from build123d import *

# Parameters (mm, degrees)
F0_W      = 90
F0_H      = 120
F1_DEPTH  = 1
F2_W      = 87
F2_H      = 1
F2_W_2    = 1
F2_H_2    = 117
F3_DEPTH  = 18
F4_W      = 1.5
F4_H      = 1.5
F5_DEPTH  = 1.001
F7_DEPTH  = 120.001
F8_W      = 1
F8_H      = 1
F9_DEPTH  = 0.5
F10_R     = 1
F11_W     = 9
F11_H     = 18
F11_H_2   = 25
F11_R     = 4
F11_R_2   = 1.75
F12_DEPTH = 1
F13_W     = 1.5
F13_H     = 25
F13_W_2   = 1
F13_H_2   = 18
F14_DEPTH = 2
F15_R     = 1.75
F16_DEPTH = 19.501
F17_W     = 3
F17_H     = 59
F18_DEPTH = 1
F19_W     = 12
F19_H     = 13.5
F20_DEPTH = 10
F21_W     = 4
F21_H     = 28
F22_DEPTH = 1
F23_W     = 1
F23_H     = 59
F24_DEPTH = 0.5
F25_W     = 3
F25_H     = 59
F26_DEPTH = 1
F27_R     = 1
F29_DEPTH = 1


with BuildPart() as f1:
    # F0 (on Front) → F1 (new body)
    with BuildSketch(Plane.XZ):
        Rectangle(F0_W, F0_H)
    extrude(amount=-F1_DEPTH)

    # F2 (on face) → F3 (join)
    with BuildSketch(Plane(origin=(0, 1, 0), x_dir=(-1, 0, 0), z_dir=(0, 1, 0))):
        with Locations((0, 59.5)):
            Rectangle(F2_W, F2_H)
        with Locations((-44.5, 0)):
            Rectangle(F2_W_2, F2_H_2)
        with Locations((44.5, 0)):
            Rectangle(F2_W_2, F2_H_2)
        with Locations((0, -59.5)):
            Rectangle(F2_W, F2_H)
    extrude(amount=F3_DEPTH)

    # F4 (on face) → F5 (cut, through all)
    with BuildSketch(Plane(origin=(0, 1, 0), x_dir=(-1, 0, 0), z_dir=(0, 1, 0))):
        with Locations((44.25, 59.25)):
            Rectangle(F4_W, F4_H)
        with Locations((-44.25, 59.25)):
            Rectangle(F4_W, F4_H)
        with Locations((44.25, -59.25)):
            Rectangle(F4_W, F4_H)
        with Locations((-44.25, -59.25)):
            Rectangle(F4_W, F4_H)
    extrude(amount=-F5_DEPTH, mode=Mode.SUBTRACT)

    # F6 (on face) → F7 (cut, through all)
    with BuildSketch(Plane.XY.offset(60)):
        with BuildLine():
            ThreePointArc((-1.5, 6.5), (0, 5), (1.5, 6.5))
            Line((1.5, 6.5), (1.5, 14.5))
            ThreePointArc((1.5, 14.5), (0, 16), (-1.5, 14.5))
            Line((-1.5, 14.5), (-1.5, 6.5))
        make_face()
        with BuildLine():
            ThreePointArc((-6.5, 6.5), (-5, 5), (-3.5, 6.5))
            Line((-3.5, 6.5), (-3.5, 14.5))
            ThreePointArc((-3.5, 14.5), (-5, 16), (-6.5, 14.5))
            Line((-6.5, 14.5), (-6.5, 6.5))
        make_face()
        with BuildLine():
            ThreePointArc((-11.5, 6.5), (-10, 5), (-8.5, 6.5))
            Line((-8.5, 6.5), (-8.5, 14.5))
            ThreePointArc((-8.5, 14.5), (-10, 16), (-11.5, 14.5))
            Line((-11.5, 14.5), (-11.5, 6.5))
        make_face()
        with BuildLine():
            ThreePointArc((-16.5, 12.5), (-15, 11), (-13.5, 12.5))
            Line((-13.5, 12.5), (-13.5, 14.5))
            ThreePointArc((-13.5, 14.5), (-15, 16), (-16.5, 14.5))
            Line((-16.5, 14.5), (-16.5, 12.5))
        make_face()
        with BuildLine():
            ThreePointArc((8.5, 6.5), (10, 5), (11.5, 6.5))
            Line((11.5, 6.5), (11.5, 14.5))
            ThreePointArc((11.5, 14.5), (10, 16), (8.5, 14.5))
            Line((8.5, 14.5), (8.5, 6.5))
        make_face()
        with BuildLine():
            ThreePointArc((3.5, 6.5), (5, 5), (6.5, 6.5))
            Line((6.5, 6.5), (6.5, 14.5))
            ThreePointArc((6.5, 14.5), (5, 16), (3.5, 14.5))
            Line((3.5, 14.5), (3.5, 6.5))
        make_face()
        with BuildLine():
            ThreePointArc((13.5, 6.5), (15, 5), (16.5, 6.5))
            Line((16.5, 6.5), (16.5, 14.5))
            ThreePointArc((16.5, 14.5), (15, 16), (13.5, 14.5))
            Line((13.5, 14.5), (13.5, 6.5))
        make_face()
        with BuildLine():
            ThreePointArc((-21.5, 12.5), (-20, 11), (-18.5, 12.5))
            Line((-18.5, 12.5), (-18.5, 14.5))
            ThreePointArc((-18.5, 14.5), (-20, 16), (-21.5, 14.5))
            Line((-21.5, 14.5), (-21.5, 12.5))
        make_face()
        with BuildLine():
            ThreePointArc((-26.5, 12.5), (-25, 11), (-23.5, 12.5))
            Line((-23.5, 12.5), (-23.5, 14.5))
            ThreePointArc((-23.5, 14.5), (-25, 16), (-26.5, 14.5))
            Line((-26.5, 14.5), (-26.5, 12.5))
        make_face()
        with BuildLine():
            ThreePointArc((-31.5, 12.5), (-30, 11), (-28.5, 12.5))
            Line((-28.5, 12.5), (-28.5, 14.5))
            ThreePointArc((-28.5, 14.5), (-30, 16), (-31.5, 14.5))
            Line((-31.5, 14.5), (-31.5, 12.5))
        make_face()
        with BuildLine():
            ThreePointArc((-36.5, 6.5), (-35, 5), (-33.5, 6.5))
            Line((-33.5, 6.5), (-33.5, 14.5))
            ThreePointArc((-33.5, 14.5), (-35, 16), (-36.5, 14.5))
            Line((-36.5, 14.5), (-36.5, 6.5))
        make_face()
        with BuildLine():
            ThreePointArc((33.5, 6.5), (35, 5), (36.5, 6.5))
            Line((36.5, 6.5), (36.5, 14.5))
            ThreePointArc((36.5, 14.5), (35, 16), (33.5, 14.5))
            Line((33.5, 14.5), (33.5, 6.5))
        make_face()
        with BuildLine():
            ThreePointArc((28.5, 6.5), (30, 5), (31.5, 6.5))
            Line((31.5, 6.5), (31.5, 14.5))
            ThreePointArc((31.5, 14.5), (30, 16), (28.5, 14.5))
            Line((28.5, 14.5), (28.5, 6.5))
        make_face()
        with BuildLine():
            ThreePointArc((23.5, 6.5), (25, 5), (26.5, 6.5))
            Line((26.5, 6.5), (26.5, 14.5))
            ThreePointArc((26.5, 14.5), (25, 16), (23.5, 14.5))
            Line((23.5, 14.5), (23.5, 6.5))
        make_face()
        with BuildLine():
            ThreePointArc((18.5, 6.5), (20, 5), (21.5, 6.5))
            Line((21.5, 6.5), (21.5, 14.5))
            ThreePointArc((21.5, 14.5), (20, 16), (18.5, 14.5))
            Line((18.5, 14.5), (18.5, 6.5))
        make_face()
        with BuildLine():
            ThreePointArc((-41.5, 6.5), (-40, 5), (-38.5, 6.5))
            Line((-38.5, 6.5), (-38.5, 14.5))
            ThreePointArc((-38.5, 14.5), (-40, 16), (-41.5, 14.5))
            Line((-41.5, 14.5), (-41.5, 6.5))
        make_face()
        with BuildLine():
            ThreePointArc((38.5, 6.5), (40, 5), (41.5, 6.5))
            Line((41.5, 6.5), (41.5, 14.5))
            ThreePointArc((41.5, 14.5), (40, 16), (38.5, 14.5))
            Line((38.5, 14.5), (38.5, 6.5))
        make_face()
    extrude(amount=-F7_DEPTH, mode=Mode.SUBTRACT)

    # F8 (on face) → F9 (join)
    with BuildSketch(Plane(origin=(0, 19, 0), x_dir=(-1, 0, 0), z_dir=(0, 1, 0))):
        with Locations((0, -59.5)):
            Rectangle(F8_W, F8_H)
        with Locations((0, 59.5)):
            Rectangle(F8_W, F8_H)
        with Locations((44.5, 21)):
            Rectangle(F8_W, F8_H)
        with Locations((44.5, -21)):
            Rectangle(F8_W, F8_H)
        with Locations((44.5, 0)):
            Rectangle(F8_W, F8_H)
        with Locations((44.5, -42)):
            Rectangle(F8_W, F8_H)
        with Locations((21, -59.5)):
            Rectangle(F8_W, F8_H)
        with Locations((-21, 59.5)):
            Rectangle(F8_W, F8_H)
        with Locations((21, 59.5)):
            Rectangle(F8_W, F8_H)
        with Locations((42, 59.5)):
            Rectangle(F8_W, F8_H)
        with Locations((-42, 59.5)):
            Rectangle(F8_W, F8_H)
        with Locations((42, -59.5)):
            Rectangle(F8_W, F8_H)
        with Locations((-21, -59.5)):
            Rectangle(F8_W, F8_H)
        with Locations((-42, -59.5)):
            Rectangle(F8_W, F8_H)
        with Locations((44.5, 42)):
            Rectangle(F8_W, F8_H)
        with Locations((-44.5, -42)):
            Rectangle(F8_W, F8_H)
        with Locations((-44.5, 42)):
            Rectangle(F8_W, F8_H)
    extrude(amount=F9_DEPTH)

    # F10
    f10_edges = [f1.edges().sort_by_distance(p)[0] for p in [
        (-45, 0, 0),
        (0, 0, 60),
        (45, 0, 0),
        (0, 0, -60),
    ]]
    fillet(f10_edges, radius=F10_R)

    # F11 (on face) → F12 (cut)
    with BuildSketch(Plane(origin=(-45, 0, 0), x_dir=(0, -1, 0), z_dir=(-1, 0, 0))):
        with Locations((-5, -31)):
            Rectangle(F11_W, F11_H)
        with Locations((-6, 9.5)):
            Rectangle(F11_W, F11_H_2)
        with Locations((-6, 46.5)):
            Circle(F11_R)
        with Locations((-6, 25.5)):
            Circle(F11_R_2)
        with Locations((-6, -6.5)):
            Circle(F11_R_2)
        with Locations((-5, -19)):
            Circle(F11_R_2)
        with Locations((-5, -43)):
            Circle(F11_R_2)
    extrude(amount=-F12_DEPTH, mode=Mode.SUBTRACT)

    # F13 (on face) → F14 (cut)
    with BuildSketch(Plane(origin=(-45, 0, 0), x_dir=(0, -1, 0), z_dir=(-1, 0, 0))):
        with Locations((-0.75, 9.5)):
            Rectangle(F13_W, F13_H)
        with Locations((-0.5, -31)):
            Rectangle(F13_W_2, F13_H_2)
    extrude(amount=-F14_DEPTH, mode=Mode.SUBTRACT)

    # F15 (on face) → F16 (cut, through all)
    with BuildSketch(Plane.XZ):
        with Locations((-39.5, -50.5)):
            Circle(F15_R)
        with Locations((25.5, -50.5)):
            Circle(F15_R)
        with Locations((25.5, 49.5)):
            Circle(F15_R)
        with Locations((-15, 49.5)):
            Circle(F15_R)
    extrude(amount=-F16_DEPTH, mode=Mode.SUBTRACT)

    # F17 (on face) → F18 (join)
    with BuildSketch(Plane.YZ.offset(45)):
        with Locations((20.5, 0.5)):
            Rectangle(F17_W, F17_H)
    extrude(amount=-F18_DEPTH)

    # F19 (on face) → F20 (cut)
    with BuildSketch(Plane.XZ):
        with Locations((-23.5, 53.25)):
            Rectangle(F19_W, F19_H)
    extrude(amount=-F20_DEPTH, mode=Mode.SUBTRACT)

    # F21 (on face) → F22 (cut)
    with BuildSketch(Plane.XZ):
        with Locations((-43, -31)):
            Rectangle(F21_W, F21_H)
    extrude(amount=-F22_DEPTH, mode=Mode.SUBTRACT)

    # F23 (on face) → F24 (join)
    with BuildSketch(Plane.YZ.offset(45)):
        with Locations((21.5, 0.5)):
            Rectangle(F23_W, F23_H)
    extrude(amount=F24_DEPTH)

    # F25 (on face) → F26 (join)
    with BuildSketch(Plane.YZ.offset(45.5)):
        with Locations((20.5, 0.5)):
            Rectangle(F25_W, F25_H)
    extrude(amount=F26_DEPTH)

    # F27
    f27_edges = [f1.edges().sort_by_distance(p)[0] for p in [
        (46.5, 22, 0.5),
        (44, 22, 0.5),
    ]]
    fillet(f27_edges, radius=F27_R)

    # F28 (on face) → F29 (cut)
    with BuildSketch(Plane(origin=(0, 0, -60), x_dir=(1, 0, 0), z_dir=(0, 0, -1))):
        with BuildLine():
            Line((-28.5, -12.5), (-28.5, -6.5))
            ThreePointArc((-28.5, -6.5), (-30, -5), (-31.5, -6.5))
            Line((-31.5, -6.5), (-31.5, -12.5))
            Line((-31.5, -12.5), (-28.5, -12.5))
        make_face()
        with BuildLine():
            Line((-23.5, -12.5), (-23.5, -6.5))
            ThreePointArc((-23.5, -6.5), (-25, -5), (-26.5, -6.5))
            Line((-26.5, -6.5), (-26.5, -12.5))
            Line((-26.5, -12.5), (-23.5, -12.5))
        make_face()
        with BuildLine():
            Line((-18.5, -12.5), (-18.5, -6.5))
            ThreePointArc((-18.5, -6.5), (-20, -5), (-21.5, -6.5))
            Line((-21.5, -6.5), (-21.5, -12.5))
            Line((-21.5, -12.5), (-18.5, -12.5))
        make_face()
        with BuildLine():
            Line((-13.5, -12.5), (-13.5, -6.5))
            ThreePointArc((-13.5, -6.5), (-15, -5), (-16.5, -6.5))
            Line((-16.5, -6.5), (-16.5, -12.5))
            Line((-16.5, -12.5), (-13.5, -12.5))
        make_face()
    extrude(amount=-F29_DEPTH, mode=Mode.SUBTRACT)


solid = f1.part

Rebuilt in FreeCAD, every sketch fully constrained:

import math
import FreeCAD as App
import Part
import Sketcher
Q = App.Units.Quantity


def edges_at(feature, points):
    """Names of the edges that pass closest to the given points."""
    edges = feature.Shape.Edges
    near = lambda p: min(range(len(edges)), key=lambda i: edges[i].distToShape(Part.Vertex(*p))[0])
    return sorted({f"Edge{near(p) + 1}" for p in points})


def add_polygon(sketch, points):
    """Adds a closed chain of lines whose ends are joined by coincident constraints."""
    first, n = sketch.GeometryCount, len(points)
    for a, b in zip(points, points[1:] + points[:1]):
        sketch.addGeometry(Part.LineSegment(App.Vector(*a, 0), App.Vector(*b, 0)), False)
    for i in range(n):
        sketch.addConstraint(Sketcher.Constraint("Coincident", first + i, 2, first + (i + 1) % n, 1))

doc = App.newDocument("Part")
body = doc.addObject("PartDesign::Body", "Body")

# Sketch on XZ plane
sketch1 = body.newObject("Sketcher::SketchObject", "Sketch")
sketch1.AttachmentSupport = (doc.getObject("XZ_Plane"), [""])
sketch1.MapMode = "FlatFace"
add_polygon(sketch1, [(-45, 60), (-45, -60), (45, -60), (45, 60)])  # lines 0-3
sketch1.addConstraint([
    Sketcher.Constraint("Vertical", 0),
    Sketcher.Constraint("Horizontal", 1),
    Sketcher.Constraint("Vertical", 2),
    Sketcher.Constraint("Horizontal", 3),
    Sketcher.Constraint("Symmetric", 0, 2, 2, 2, -1, 1),
    Sketcher.Constraint("DistanceX", 1, 1, 1, 2, Q("90 mm")),
    Sketcher.Constraint("DistanceY", 0, 2, 0, 1, Q("120 mm")),
])
pad1 = body.newObject("PartDesign::Pad", "Pad")
pad1.Profile = sketch1
pad1.Length = 1
pad1.Reversed = True

# Sketch on XZ plane
sketch2 = body.newObject("Sketcher::SketchObject", "Sketch001")
sketch2.AttachmentSupport = (doc.getObject("XZ_Plane"), [""])
sketch2.MapMode = "FlatFace"
sketch2.AttachmentOffset = App.Placement(App.Vector(0, 0, -1), App.Rotation())
add_polygon(sketch2, [(43.5, 60), (43.5, 59), (-43.5, 59), (-43.5, 60)])  # lines 0-3
add_polygon(sketch2, [(45, 58.5), (45, -58.5), (44, -58.5), (44, 58.5)])  # lines 4-7
add_polygon(sketch2, [(-44, 58.5), (-44, -58.5), (-45, -58.5), (-45, 58.5)])  # lines 8-11
add_polygon(sketch2, [(43.5, -59), (43.5, -60), (-43.5, -60), (-43.5, -59)])  # lines 12-15
sketch2.addConstraint([
    Sketcher.Constraint("Vertical", 0),
    Sketcher.Constraint("Horizontal", 1),
    Sketcher.Constraint("Vertical", 2),
    Sketcher.Constraint("Horizontal", 3),
    Sketcher.Constraint("Vertical", 4),
    Sketcher.Constraint("Horizontal", 5),
    Sketcher.Constraint("Vertical", 6),
    Sketcher.Constraint("Horizontal", 7),
    Sketcher.Constraint("Vertical", 8),
    Sketcher.Constraint("Horizontal", 9),
    Sketcher.Constraint("Vertical", 10),
    Sketcher.Constraint("Horizontal", 11),
    Sketcher.Constraint("Vertical", 12),
    Sketcher.Constraint("Horizontal", 13),
    Sketcher.Constraint("Vertical", 14),
    Sketcher.Constraint("Horizontal", 15),
    Sketcher.Constraint("Symmetric", 6, 2, 8, 2, -1, 1),
    Sketcher.Constraint("Symmetric", 4, 2, 10, 2, -1, 1),
    Sketcher.Constraint("Symmetric", 2, 2, 12, 2, -1, 1),
    Sketcher.Constraint("Symmetric", 0, 2, 14, 2, -1, 1),
    Sketcher.Constraint("Horizontal", 5, 2, 8, 2),
    Sketcher.Constraint("Vertical", 3, 2, 12, 2),
    Sketcher.Constraint("Equal", 11, 0),
    Sketcher.Constraint("DistanceX", 1, 2, 1, 1, Q("87 mm")),
    Sketcher.Constraint("DistanceX", 5, 2, 5, 1, Q("1 mm")),
    Sketcher.Constraint("DistanceY", 4, 2, 4, 1, Q("117 mm")),
    Sketcher.Constraint("DistanceY", -1, 1, 0, 2, Q("59 mm")),
    Sketcher.Constraint("DistanceX", -1, 1, 4, 2, Q("45 mm")),
])
pad2 = body.newObject("PartDesign::Pad", "Pad001")
pad2.Profile = sketch2
pad2.Length = 18
pad2.Reversed = True

# Sketch on XZ plane
sketch3 = body.newObject("Sketcher::SketchObject", "Sketch002")
sketch3.AttachmentSupport = (doc.getObject("XZ_Plane"), [""])
sketch3.MapMode = "FlatFace"
sketch3.AttachmentOffset = App.Placement(App.Vector(0, 0, -1), App.Rotation())
add_polygon(sketch3, [(-43.5, 60), (-43.5, 58.5), (-45, 58.5), (-45, 60)])  # lines 0-3
add_polygon(sketch3, [(45, 60), (45, 58.5), (43.5, 58.5), (43.5, 60)])  # lines 4-7
add_polygon(sketch3, [(-43.5, -58.5), (-43.5, -60), (-45, -60), (-45, -58.5)])  # lines 8-11
add_polygon(sketch3, [(45, -58.5), (45, -60), (43.5, -60), (43.5, -58.5)])  # lines 12-15
sketch3.addConstraint([
    Sketcher.Constraint("Vertical", 0),
    Sketcher.Constraint("Horizontal", 1),
    Sketcher.Constraint("Vertical", 2),
    Sketcher.Constraint("Horizontal", 3),
    Sketcher.Constraint("Vertical", 4),
    Sketcher.Constraint("Horizontal", 5),
    Sketcher.Constraint("Vertical", 6),
    Sketcher.Constraint("Horizontal", 7),
    Sketcher.Constraint("Vertical", 8),
    Sketcher.Constraint("Horizontal", 9),
    Sketcher.Constraint("Vertical", 10),
    Sketcher.Constraint("Horizontal", 11),
    Sketcher.Constraint("Vertical", 12),
    Sketcher.Constraint("Horizontal", 13),
    Sketcher.Constraint("Vertical", 14),
    Sketcher.Constraint("Horizontal", 15),
    Sketcher.Constraint("Symmetric", 6, 2, 8, 2, -1, 1),
    Sketcher.Constraint("Symmetric", 4, 2, 10, 2, -1, 1),
    Sketcher.Constraint("Symmetric", 2, 2, 12, 2, -1, 1),
    Sketcher.Constraint("Symmetric", 0, 2, 14, 2, -1, 1),
    Sketcher.Constraint("Symmetric", 1, 2, 4, 2, -2),
    Sketcher.Constraint("Symmetric", 3, 2, 6, 2, -2),
    Sketcher.Constraint("Equal", 15, 0),
    Sketcher.Constraint("DistanceX", 1, 2, 1, 1, Q("1.5 mm")),
    Sketcher.Constraint("DistanceX", 1, 2, -1, 1, Q("45 mm")),
    Sketcher.Constraint("DistanceY", -1, 1, 2, 2, Q("60 mm")),
])
pocket1 = body.newObject("PartDesign::Pocket", "Pocket")
pocket1.Profile = sketch3
pocket1.Type = "ThroughAll"
pocket1.Reversed = True

# Sketch on XY plane
sketch4 = body.newObject("Sketcher::SketchObject", "Sketch003")
sketch4.AttachmentSupport = (doc.getObject("XY_Plane"), [""])
sketch4.MapMode = "FlatFace"
sketch4.AttachmentOffset = App.Placement(App.Vector(0, 0, 60), App.Rotation())
sketch4.addGeometry([
    Part.ArcOfCircle(Part.Circle(App.Vector(0, 6.5, 0), App.Vector(0, 0, 1), 1.5), math.radians(180), math.radians(360)),  # 0
    Part.LineSegment(App.Vector(1.5, 6.5, 0), App.Vector(1.5, 14.5, 0)),  # 1
    Part.ArcOfCircle(Part.Circle(App.Vector(0, 14.5, 0), App.Vector(0, 0, 1), 1.5), math.radians(0), math.radians(180)),  # 2
    Part.LineSegment(App.Vector(-1.5, 14.5, 0), App.Vector(-1.5, 6.5, 0)),  # 3
    Part.ArcOfCircle(Part.Circle(App.Vector(-5, 6.5, 0), App.Vector(0, 0, 1), 1.5), math.radians(180), math.radians(360)),  # 4
    Part.LineSegment(App.Vector(-3.5, 6.5, 0), App.Vector(-3.5, 14.5, 0)),  # 5
    Part.ArcOfCircle(Part.Circle(App.Vector(-5, 14.5, 0), App.Vector(0, 0, 1), 1.5), math.radians(0), math.radians(180)),  # 6
    Part.LineSegment(App.Vector(-6.5, 14.5, 0), App.Vector(-6.5, 6.5, 0)),  # 7
    Part.ArcOfCircle(Part.Circle(App.Vector(-10, 6.5, 0), App.Vector(0, 0, 1), 1.5), math.radians(180), math.radians(360)),  # 8
    Part.LineSegment(App.Vector(-8.5, 6.5, 0), App.Vector(-8.5, 14.5, 0)),  # 9
    Part.ArcOfCircle(Part.Circle(App.Vector(-10, 14.5, 0), App.Vector(0, 0, 1), 1.5), math.radians(0), math.radians(180)),  # 10
    Part.LineSegment(App.Vector(-11.5, 14.5, 0), App.Vector(-11.5, 6.5, 0)),  # 11
    Part.ArcOfCircle(Part.Circle(App.Vector(-15, 12.5, 0), App.Vector(0, 0, 1), 1.5), math.radians(180), math.radians(360)),  # 12
    Part.LineSegment(App.Vector(-13.5, 12.5, 0), App.Vector(-13.5, 14.5, 0)),  # 13
    Part.ArcOfCircle(Part.Circle(App.Vector(-15, 14.5, 0), App.Vector(0, 0, 1), 1.5), math.radians(0), math.radians(180)),  # 14
    Part.LineSegment(App.Vector(-16.5, 14.5, 0), App.Vector(-16.5, 12.5, 0)),  # 15
    Part.ArcOfCircle(Part.Circle(App.Vector(10, 6.5, 0), App.Vector(0, 0, 1), 1.5), math.radians(180), math.radians(360)),  # 16
    Part.LineSegment(App.Vector(11.5, 6.5, 0), App.Vector(11.5, 14.5, 0)),  # 17
    Part.ArcOfCircle(Part.Circle(App.Vector(10, 14.5, 0), App.Vector(0, 0, 1), 1.5), math.radians(0), math.radians(180)),  # 18
    Part.LineSegment(App.Vector(8.5, 14.5, 0), App.Vector(8.5, 6.5, 0)),  # 19
    Part.ArcOfCircle(Part.Circle(App.Vector(5, 6.5, 0), App.Vector(0, 0, 1), 1.5), math.radians(180), math.radians(360)),  # 20
    Part.LineSegment(App.Vector(6.5, 6.5, 0), App.Vector(6.5, 14.5, 0)),  # 21
    Part.ArcOfCircle(Part.Circle(App.Vector(5, 14.5, 0), App.Vector(0, 0, 1), 1.5), math.radians(0), math.radians(180)),  # 22
    Part.LineSegment(App.Vector(3.5, 14.5, 0), App.Vector(3.5, 6.5, 0)),  # 23
    Part.ArcOfCircle(Part.Circle(App.Vector(15, 6.5, 0), App.Vector(0, 0, 1), 1.5), math.radians(180), math.radians(360)),  # 24
    Part.LineSegment(App.Vector(16.5, 6.5, 0), App.Vector(16.5, 14.5, 0)),  # 25
    Part.ArcOfCircle(Part.Circle(App.Vector(15, 14.5, 0), App.Vector(0, 0, 1), 1.5), math.radians(0), math.radians(180)),  # 26
    Part.LineSegment(App.Vector(13.5, 14.5, 0), App.Vector(13.5, 6.5, 0)),  # 27
    Part.ArcOfCircle(Part.Circle(App.Vector(-20, 12.5, 0), App.Vector(0, 0, 1), 1.5), math.radians(180), math.radians(360)),  # 28
    Part.LineSegment(App.Vector(-18.5, 12.5, 0), App.Vector(-18.5, 14.5, 0)),  # 29
    Part.ArcOfCircle(Part.Circle(App.Vector(-20, 14.5, 0), App.Vector(0, 0, 1), 1.5), math.radians(0), math.radians(180)),  # 30
    Part.LineSegment(App.Vector(-21.5, 14.5, 0), App.Vector(-21.5, 12.5, 0)),  # 31
    Part.ArcOfCircle(Part.Circle(App.Vector(-25, 12.5, 0), App.Vector(0, 0, 1), 1.5), math.radians(180), math.radians(360)),  # 32
    Part.LineSegment(App.Vector(-23.5, 12.5, 0), App.Vector(-23.5, 14.5, 0)),  # 33
    Part.ArcOfCircle(Part.Circle(App.Vector(-25, 14.5, 0), App.Vector(0, 0, 1), 1.5), math.radians(0), math.radians(180)),  # 34
    Part.LineSegment(App.Vector(-26.5, 14.5, 0), App.Vector(-26.5, 12.5, 0)),  # 35
    Part.ArcOfCircle(Part.Circle(App.Vector(-30, 12.5, 0), App.Vector(0, 0, 1), 1.5), math.radians(180), math.radians(360)),  # 36
    Part.LineSegment(App.Vector(-28.5, 12.5, 0), App.Vector(-28.5, 14.5, 0)),  # 37
    Part.ArcOfCircle(Part.Circle(App.Vector(-30, 14.5, 0), App.Vector(0, 0, 1), 1.5), math.radians(0), math.radians(180)),  # 38
    Part.LineSegment(App.Vector(-31.5, 14.5, 0), App.Vector(-31.5, 12.5, 0)),  # 39
    Part.ArcOfCircle(Part.Circle(App.Vector(-35, 6.5, 0), App.Vector(0, 0, 1), 1.5), math.radians(180), math.radians(360)),  # 40
    Part.LineSegment(App.Vector(-33.5, 6.5, 0), App.Vector(-33.5, 14.5, 0)),  # 41
    Part.ArcOfCircle(Part.Circle(App.Vector(-35, 14.5, 0), App.Vector(0, 0, 1), 1.5), math.radians(0), math.radians(180)),  # 42
    Part.LineSegment(App.Vector(-36.5, 14.5, 0), App.Vector(-36.5, 6.5, 0)),  # 43
    Part.ArcOfCircle(Part.Circle(App.Vector(35, 6.5, 0), App.Vector(0, 0, 1), 1.5), math.radians(180), math.radians(360)),  # 44
    Part.LineSegment(App.Vector(36.5, 6.5, 0), App.Vector(36.5, 14.5, 0)),  # 45
    Part.ArcOfCircle(Part.Circle(App.Vector(35, 14.5, 0), App.Vector(0, 0, 1), 1.5), math.radians(0), math.radians(180)),  # 46
    Part.LineSegment(App.Vector(33.5, 14.5, 0), App.Vector(33.5, 6.5, 0)),  # 47
    Part.ArcOfCircle(Part.Circle(App.Vector(30, 6.5, 0), App.Vector(0, 0, 1), 1.5), math.radians(180), math.radians(360)),  # 48
    Part.LineSegment(App.Vector(31.5, 6.5, 0), App.Vector(31.5, 14.5, 0)),  # 49
    Part.ArcOfCircle(Part.Circle(App.Vector(30, 14.5, 0), App.Vector(0, 0, 1), 1.5), math.radians(0), math.radians(180)),  # 50
    Part.LineSegment(App.Vector(28.5, 14.5, 0), App.Vector(28.5, 6.5, 0)),  # 51
    Part.ArcOfCircle(Part.Circle(App.Vector(25, 6.5, 0), App.Vector(0, 0, 1), 1.5), math.radians(180), math.radians(360)),  # 52
    Part.LineSegment(App.Vector(26.5, 6.5, 0), App.Vector(26.5, 14.5, 0)),  # 53
    Part.ArcOfCircle(Part.Circle(App.Vector(25, 14.5, 0), App.Vector(0, 0, 1), 1.5), math.radians(0), math.radians(180)),  # 54
    Part.LineSegment(App.Vector(23.5, 14.5, 0), App.Vector(23.5, 6.5, 0)),  # 55
    Part.ArcOfCircle(Part.Circle(App.Vector(20, 6.5, 0), App.Vector(0, 0, 1), 1.5), math.radians(180), math.radians(360)),  # 56
    Part.LineSegment(App.Vector(21.5, 6.5, 0), App.Vector(21.5, 14.5, 0)),  # 57
    Part.ArcOfCircle(Part.Circle(App.Vector(20, 14.5, 0), App.Vector(0, 0, 1), 1.5), math.radians(0), math.radians(180)),  # 58
    Part.LineSegment(App.Vector(18.5, 14.5, 0), App.Vector(18.5, 6.5, 0)),  # 59
    Part.ArcOfCircle(Part.Circle(App.Vector(-40, 6.5, 0), App.Vector(0, 0, 1), 1.5), math.radians(180), math.radians(360)),  # 60
    Part.LineSegment(App.Vector(-38.5, 6.5, 0), App.Vector(-38.5, 14.5, 0)),  # 61
    Part.ArcOfCircle(Part.Circle(App.Vector(-40, 14.5, 0), App.Vector(0, 0, 1), 1.5), math.radians(0), math.radians(180)),  # 62
    Part.LineSegment(App.Vector(-41.5, 14.5, 0), App.Vector(-41.5, 6.5, 0)),  # 63
    Part.ArcOfCircle(Part.Circle(App.Vector(40, 6.5, 0), App.Vector(0, 0, 1), 1.5), math.radians(180), math.radians(360)),  # 64
    Part.LineSegment(App.Vector(41.5, 6.5, 0), App.Vector(41.5, 14.5, 0)),  # 65
    Part.ArcOfCircle(Part.Circle(App.Vector(40, 14.5, 0), App.Vector(0, 0, 1), 1.5), math.radians(0), math.radians(180)),  # 66
    Part.LineSegment(App.Vector(38.5, 14.5, 0), App.Vector(38.5, 6.5, 0)),  # 67
], False)
sketch4.addConstraint([
    Sketcher.Constraint("Tangent", 0, 2, 1, 1),
    Sketcher.Constraint("Tangent", 1, 2, 2, 1),
    Sketcher.Constraint("Tangent", 2, 2, 3, 1),
    Sketcher.Constraint("Tangent", 3, 2, 0, 1),
    Sketcher.Constraint("Tangent", 4, 2, 5, 1),
    Sketcher.Constraint("Tangent", 5, 2, 6, 1),
    Sketcher.Constraint("Tangent", 6, 2, 7, 1),
    Sketcher.Constraint("Tangent", 7, 2, 4, 1),
    Sketcher.Constraint("Tangent", 8, 2, 9, 1),
    Sketcher.Constraint("Tangent", 9, 2, 10, 1),
    Sketcher.Constraint("Tangent", 10, 2, 11, 1),
    Sketcher.Constraint("Tangent", 11, 2, 8, 1),
    Sketcher.Constraint("Tangent", 12, 2, 13, 1),
    Sketcher.Constraint("Tangent", 13, 2, 14, 1),
    Sketcher.Constraint("Tangent", 14, 2, 15, 1),
    Sketcher.Constraint("Tangent", 15, 2, 12, 1),
    Sketcher.Constraint("Tangent", 16, 2, 17, 1),
    Sketcher.Constraint("Tangent", 17, 2, 18, 1),
    Sketcher.Constraint("Tangent", 18, 2, 19, 1),
    Sketcher.Constraint("Tangent", 19, 2, 16, 1),
    Sketcher.Constraint("Tangent", 20, 2, 21, 1),
    Sketcher.Constraint("Tangent", 21, 2, 22, 1),
    Sketcher.Constraint("Tangent", 22, 2, 23, 1),
    Sketcher.Constraint("Tangent", 23, 2, 20, 1),
    Sketcher.Constraint("Tangent", 24, 2, 25, 1),
    Sketcher.Constraint("Tangent", 25, 2, 26, 1),
    Sketcher.Constraint("Tangent", 26, 2, 27, 1),
    Sketcher.Constraint("Tangent", 27, 2, 24, 1),
    Sketcher.Constraint("Tangent", 28, 2, 29, 1),
    Sketcher.Constraint("Tangent", 29, 2, 30, 1),
    Sketcher.Constraint("Tangent", 30, 2, 31, 1),
    Sketcher.Constraint("Tangent", 31, 2, 28, 1),
    Sketcher.Constraint("Tangent", 32, 2, 33, 1),
    Sketcher.Constraint("Tangent", 33, 2, 34, 1),
    Sketcher.Constraint("Tangent", 34, 2, 35, 1),
    Sketcher.Constraint("Tangent", 35, 2, 32, 1),
    Sketcher.Constraint("Tangent", 36, 2, 37, 1),
    Sketcher.Constraint("Tangent", 37, 2, 38, 1),
    Sketcher.Constraint("Tangent", 38, 2, 39, 1),
    Sketcher.Constraint("Tangent", 39, 2, 36, 1),
    Sketcher.Constraint("Tangent", 40, 2, 41, 1),
    Sketcher.Constraint("Tangent", 41, 2, 42, 1),
    Sketcher.Constraint("Tangent", 42, 2, 43, 1),
    Sketcher.Constraint("Tangent", 43, 2, 40, 1),
    Sketcher.Constraint("Tangent", 44, 2, 45, 1),
    Sketcher.Constraint("Tangent", 45, 2, 46, 1),
    Sketcher.Constraint("Tangent", 46, 2, 47, 1),
    Sketcher.Constraint("Tangent", 47, 2, 44, 1),
    Sketcher.Constraint("Tangent", 48, 2, 49, 1),
    Sketcher.Constraint("Tangent", 49, 2, 50, 1),
    Sketcher.Constraint("Tangent", 50, 2, 51, 1),
    Sketcher.Constraint("Tangent", 51, 2, 48, 1),
    Sketcher.Constraint("Tangent", 52, 2, 53, 1),
    Sketcher.Constraint("Tangent", 53, 2, 54, 1),
    Sketcher.Constraint("Tangent", 54, 2, 55, 1),
    Sketcher.Constraint("Tangent", 55, 2, 52, 1),
    Sketcher.Constraint("Tangent", 56, 2, 57, 1),
    Sketcher.Constraint("Tangent", 57, 2, 58, 1),
    Sketcher.Constraint("Tangent", 58, 2, 59, 1),
    Sketcher.Constraint("Tangent", 59, 2, 56, 1),
    Sketcher.Constraint("Tangent", 60, 2, 61, 1),
    Sketcher.Constraint("Tangent", 61, 2, 62, 1),
    Sketcher.Constraint("Tangent", 62, 2, 63, 1),
    Sketcher.Constraint("Tangent", 63, 2, 60, 1),
    Sketcher.Constraint("Tangent", 64, 2, 65, 1),
    Sketcher.Constraint("Tangent", 65, 2, 66, 1),
    Sketcher.Constraint("Tangent", 66, 2, 67, 1),
    Sketcher.Constraint("Tangent", 67, 2, 64, 1),
    Sketcher.Constraint("Vertical", 1),
    Sketcher.Constraint("Vertical", 3),
    Sketcher.Constraint("Vertical", 5),
    Sketcher.Constraint("Vertical", 7),
    Sketcher.Constraint("Vertical", 9),
    Sketcher.Constraint("Vertical", 11),
    Sketcher.Constraint("Vertical", 13),
    Sketcher.Constraint("Vertical", 15),
    Sketcher.Constraint("Vertical", 17),
    Sketcher.Constraint("Vertical", 19),
    Sketcher.Constraint("Vertical", 21),
    Sketcher.Constraint("Vertical", 23),
    Sketcher.Constraint("Vertical", 25),
    Sketcher.Constraint("Vertical", 27),
    Sketcher.Constraint("Vertical", 29),
    Sketcher.Constraint("Vertical", 31),
    Sketcher.Constraint("Vertical", 33),
    Sketcher.Constraint("Vertical", 35),
    Sketcher.Constraint("Vertical", 37),
    Sketcher.Constraint("Vertical", 39),
    Sketcher.Constraint("Vertical", 41),
    Sketcher.Constraint("Vertical", 43),
    Sketcher.Constraint("Vertical", 45),
    Sketcher.Constraint("Vertical", 47),
    Sketcher.Constraint("Vertical", 49),
    Sketcher.Constraint("Vertical", 51),
    Sketcher.Constraint("Vertical", 53),
    Sketcher.Constraint("Vertical", 55),
    Sketcher.Constraint("Vertical", 57),
    Sketcher.Constraint("Vertical", 59),
    Sketcher.Constraint("Vertical", 61),
    Sketcher.Constraint("Vertical", 63),
    Sketcher.Constraint("Vertical", 65),
    Sketcher.Constraint("Vertical", 67),
    Sketcher.Constraint("Equal", 2, 4),
    Sketcher.Constraint("Equal", 6, 8),
    Sketcher.Constraint("Equal", 10, 12),
    Sketcher.Constraint("Equal", 14, 16),
    Sketcher.Constraint("Equal", 18, 20),
    Sketcher.Constraint("Equal", 22, 24),
    Sketcher.Constraint("Equal", 26, 28),
    Sketcher.Constraint("Equal", 30, 32),
    Sketcher.Constraint("Equal", 34, 36),
    Sketcher.Constraint("Equal", 38, 40),
    Sketcher.Constraint("Equal", 42, 44),
    Sketcher.Constraint("Equal", 46, 48),
    Sketcher.Constraint("Equal", 50, 52),
    Sketcher.Constraint("Equal", 54, 56),
    Sketcher.Constraint("Equal", 58, 60),
    Sketcher.Constraint("Equal", 62, 64),
    Sketcher.Constraint("Symmetric", 8, 3, 16, 3, -2),
    Sketcher.Constraint("Symmetric", 4, 3, 20, 3, -2),
    Sketcher.Constraint("Symmetric", 14, 3, 26, 3, -2),
    Sketcher.Constraint("Symmetric", 40, 3, 44, 3, -2),
    Sketcher.Constraint("Symmetric", 38, 3, 50, 3, -2),
    Sketcher.Constraint("Symmetric", 34, 3, 54, 3, -2),
    Sketcher.Constraint("Symmetric", 30, 3, 58, 3, -2),
    Sketcher.Constraint("Symmetric", 60, 3, 64, 3, -2),
    Sketcher.Constraint("PointOnObject", 0, 3, -2),
    Sketcher.Constraint("Horizontal", 0, 3, 4, 3),
    Sketcher.Constraint("Horizontal", 2, 3, 6, 3),
    Sketcher.Constraint("Horizontal", 4, 3, 8, 3),
    Sketcher.Constraint("Horizontal", 6, 3, 10, 3),
    Sketcher.Constraint("Horizontal", 10, 3, 14, 3),
    Sketcher.Constraint("Horizontal", 14, 3, 18, 3),
    Sketcher.Constraint("Horizontal", 18, 3, 22, 3),
    Sketcher.Constraint("Horizontal", 20, 3, 24, 3),
    Sketcher.Constraint("Horizontal", 12, 3, 28, 3),
    Sketcher.Constraint("Horizontal", 26, 3, 30, 3),
    Sketcher.Constraint("Horizontal", 28, 3, 32, 3),
    Sketcher.Constraint("Horizontal", 30, 3, 34, 3),
    Sketcher.Constraint("Horizontal", 32, 3, 36, 3),
    Sketcher.Constraint("Horizontal", 34, 3, 38, 3),
    Sketcher.Constraint("Horizontal", 24, 3, 40, 3),
    Sketcher.Constraint("Horizontal", 38, 3, 42, 3),
    Sketcher.Constraint("Horizontal", 42, 3, 46, 3),
    Sketcher.Constraint("Horizontal", 44, 3, 48, 3),
    Sketcher.Constraint("Horizontal", 48, 3, 52, 3),
    Sketcher.Constraint("Horizontal", 52, 3, 56, 3),
    Sketcher.Constraint("Horizontal", 56, 3, 60, 3),
    Sketcher.Constraint("Horizontal", 58, 3, 62, 3),
    Sketcher.Constraint("Horizontal", 62, 3, 66, 3),
    Sketcher.Constraint("Radius", 0, Q("1.5 mm")),
    Sketcher.Constraint("DistanceY", 1, 1, 1, 2, Q("8 mm")),
    Sketcher.Constraint("DistanceY", 13, 1, 13, 2, Q("2 mm")),
    Sketcher.Constraint("DistanceX", 4, 3, -1, 1, Q("5 mm")),
    Sketcher.Constraint("DistanceX", 8, 3, -1, 1, Q("10 mm")),
    Sketcher.Constraint("DistanceX", 12, 3, -1, 1, Q("15 mm")),
    Sketcher.Constraint("DistanceX", 28, 3, -1, 1, Q("20 mm")),
    Sketcher.Constraint("DistanceX", 32, 3, -1, 1, Q("25 mm")),
    Sketcher.Constraint("DistanceX", 36, 3, -1, 1, Q("30 mm")),
    Sketcher.Constraint("DistanceX", 40, 3, -1, 1, Q("35 mm")),
    Sketcher.Constraint("DistanceX", 60, 3, -1, 1, Q("40 mm")),
    Sketcher.Constraint("DistanceY", -1, 1, 0, 3, Q("6.5 mm")),
])
pocket2 = body.newObject("PartDesign::Pocket", "Pocket001")
pocket2.Profile = sketch4
pocket2.Type = "ThroughAll"

# Sketch on XZ plane
sketch5 = body.newObject("Sketcher::SketchObject", "Sketch004")
sketch5.AttachmentSupport = (doc.getObject("XZ_Plane"), [""])
sketch5.MapMode = "FlatFace"
sketch5.AttachmentOffset = App.Placement(App.Vector(0, 0, -19), App.Rotation())
add_polygon(sketch5, [(0.5, -59), (0.5, -60), (-0.5, -60), (-0.5, -59)])  # lines 0-3
add_polygon(sketch5, [(0.5, 60), (0.5, 59), (-0.5, 59), (-0.5, 60)])  # lines 4-7
add_polygon(sketch5, [(-44, 21.5), (-44, 20.5), (-45, 20.5), (-45, 21.5)])  # lines 8-11
add_polygon(sketch5, [(-44, -20.5), (-44, -21.5), (-45, -21.5), (-45, -20.5)])  # lines 12-15
add_polygon(sketch5, [(-44, 0.5), (-44, -0.5), (-45, -0.5), (-45, 0.5)])  # lines 16-19
add_polygon(sketch5, [(-44, -41.5), (-44, -42.5), (-45, -42.5), (-45, -41.5)])  # lines 20-23
add_polygon(sketch5, [(-20.5, -59), (-20.5, -60), (-21.5, -60), (-21.5, -59)])  # lines 24-27
add_polygon(sketch5, [(21.5, 60), (21.5, 59), (20.5, 59), (20.5, 60)])  # lines 28-31
add_polygon(sketch5, [(-20.5, 60), (-20.5, 59), (-21.5, 59), (-21.5, 60)])  # lines 32-35
add_polygon(sketch5, [(-41.5, 60), (-41.5, 59), (-42.5, 59), (-42.5, 60)])  # lines 36-39
add_polygon(sketch5, [(42.5, 60), (42.5, 59), (41.5, 59), (41.5, 60)])  # lines 40-43
add_polygon(sketch5, [(-41.5, -59), (-41.5, -60), (-42.5, -60), (-42.5, -59)])  # lines 44-47
add_polygon(sketch5, [(21.5, -59), (21.5, -60), (20.5, -60), (20.5, -59)])  # lines 48-51
add_polygon(sketch5, [(42.5, -59), (42.5, -60), (41.5, -60), (41.5, -59)])  # lines 52-55
add_polygon(sketch5, [(-44, 42.5), (-44, 41.5), (-45, 41.5), (-45, 42.5)])  # lines 56-59
add_polygon(sketch5, [(45, -41.5), (45, -42.5), (44, -42.5), (44, -41.5)])  # lines 60-63
add_polygon(sketch5, [(45, 42.5), (45, 41.5), (44, 41.5), (44, 42.5)])  # lines 64-67
sketch5.addConstraint([
    Sketcher.Constraint("Vertical", 0),
    Sketcher.Constraint("Horizontal", 1),
    Sketcher.Constraint("Vertical", 2),
    Sketcher.Constraint("Horizontal", 3),
    Sketcher.Constraint("Vertical", 4),
    Sketcher.Constraint("Horizontal", 5),
    Sketcher.Constraint("Vertical", 6),
    Sketcher.Constraint("Horizontal", 7),
    Sketcher.Constraint("Vertical", 8),
    Sketcher.Constraint("Horizontal", 9),
    Sketcher.Constraint("Vertical", 10),
    Sketcher.Constraint("Horizontal", 11),
    Sketcher.Constraint("Vertical", 12),
    Sketcher.Constraint("Horizontal", 13),
    Sketcher.Constraint("Vertical", 14),
    Sketcher.Constraint("Horizontal", 15),
    Sketcher.Constraint("Vertical", 16),
    Sketcher.Constraint("Horizontal", 17),
    Sketcher.Constraint("Vertical", 18),
    Sketcher.Constraint("Horizontal", 19),
    Sketcher.Constraint("Vertical", 20),
    Sketcher.Constraint("Horizontal", 21),
    Sketcher.Constraint("Vertical", 22),
    Sketcher.Constraint("Horizontal", 23),
    Sketcher.Constraint("Vertical", 24),
    Sketcher.Constraint("Horizontal", 25),
    Sketcher.Constraint("Vertical", 26),
    Sketcher.Constraint("Horizontal", 27),
    Sketcher.Constraint("Vertical", 28),
    Sketcher.Constraint("Horizontal", 29),
    Sketcher.Constraint("Vertical", 30),
    Sketcher.Constraint("Horizontal", 31),
    Sketcher.Constraint("Vertical", 32),
    Sketcher.Constraint("Horizontal", 33),
    Sketcher.Constraint("Vertical", 34),
    Sketcher.Constraint("Horizontal", 35),
    Sketcher.Constraint("Vertical", 36),
    Sketcher.Constraint("Horizontal", 37),
    Sketcher.Constraint("Vertical", 38),
    Sketcher.Constraint("Horizontal", 39),
    Sketcher.Constraint("Vertical", 40),
    Sketcher.Constraint("Horizontal", 41),
    Sketcher.Constraint("Vertical", 42),
    Sketcher.Constraint("Horizontal", 43),
    Sketcher.Constraint("Vertical", 44),
    Sketcher.Constraint("Horizontal", 45),
    Sketcher.Constraint("Vertical", 46),
    Sketcher.Constraint("Horizontal", 47),
    Sketcher.Constraint("Vertical", 48),
    Sketcher.Constraint("Horizontal", 49),
    Sketcher.Constraint("Vertical", 50),
    Sketcher.Constraint("Horizontal", 51),
    Sketcher.Constraint("Vertical", 52),
    Sketcher.Constraint("Horizontal", 53),
    Sketcher.Constraint("Vertical", 54),
    Sketcher.Constraint("Horizontal", 55),
    Sketcher.Constraint("Vertical", 56),
    Sketcher.Constraint("Horizontal", 57),
    Sketcher.Constraint("Vertical", 58),
    Sketcher.Constraint("Horizontal", 59),
    Sketcher.Constraint("Vertical", 60),
    Sketcher.Constraint("Horizontal", 61),
    Sketcher.Constraint("Vertical", 62),
    Sketcher.Constraint("Horizontal", 63),
    Sketcher.Constraint("Vertical", 64),
    Sketcher.Constraint("Horizontal", 65),
    Sketcher.Constraint("Vertical", 66),
    Sketcher.Constraint("Horizontal", 67),
    Sketcher.Constraint("Symmetric", 2, 2, 4, 2, -1, 1),
    Sketcher.Constraint("Symmetric", 0, 2, 6, 2, -1, 1),
    Sketcher.Constraint("Symmetric", 26, 2, 28, 2, -1, 1),
    Sketcher.Constraint("Symmetric", 24, 2, 30, 2, -1, 1),
    Sketcher.Constraint("Symmetric", 42, 2, 44, 2, -1, 1),
    Sketcher.Constraint("Symmetric", 40, 2, 46, 2, -1, 1),
    Sketcher.Constraint("Symmetric", 34, 2, 48, 2, -1, 1),
    Sketcher.Constraint("Symmetric", 32, 2, 50, 2, -1, 1),
    Sketcher.Constraint("Symmetric", 38, 2, 52, 2, -1, 1),
    Sketcher.Constraint("Symmetric", 36, 2, 54, 2, -1, 1),
    Sketcher.Constraint("Symmetric", 58, 2, 60, 2, -1, 1),
    Sketcher.Constraint("Symmetric", 56, 2, 62, 2, -1, 1),
    Sketcher.Constraint("Symmetric", 22, 2, 64, 2, -1, 1),
    Sketcher.Constraint("Symmetric", 20, 2, 66, 2, -1, 1),
    Sketcher.Constraint("Symmetric", 29, 2, 32, 2, -2),
    Sketcher.Constraint("Symmetric", 31, 2, 34, 2, -2),
    Sketcher.Constraint("Symmetric", 37, 2, 40, 2, -2),
    Sketcher.Constraint("Symmetric", 39, 2, 42, 2, -2),
    Sketcher.Constraint("Symmetric", 21, 2, 60, 2, -2),
    Sketcher.Constraint("Symmetric", 23, 2, 62, 2, -2),
    Sketcher.Constraint("Symmetric", 11, 2, 12, 2, -1),
    Sketcher.Constraint("Symmetric", 9, 2, 14, 2, -1),
    Sketcher.Constraint("Horizontal", 1, 2, 24, 2),
    Sketcher.Constraint("Horizontal", 3, 2, 26, 2),
    Sketcher.Constraint("Horizontal", 33, 2, 36, 2),
    Sketcher.Constraint("Horizontal", 35, 2, 38, 2),
    Sketcher.Constraint("Vertical", 3, 2, 4, 2),
    Sketcher.Constraint("Vertical", 15, 2, 16, 2),
    Sketcher.Constraint("Vertical", 14, 2, 17, 2),
    Sketcher.Constraint("Vertical", 19, 2, 20, 2),
    Sketcher.Constraint("Vertical", 18, 2, 21, 2),
    Sketcher.Constraint("Equal", 7, 9),
    Sketcher.Constraint("Equal", 23, 25),
    Sketcher.Constraint("Equal", 35, 37),
    Sketcher.Constraint("Equal", 67, 0),
    Sketcher.Constraint("Equal", 6, 8),
    Sketcher.Constraint("Equal", 14, 16),
    Sketcher.Constraint("Equal", 18, 20),
    Sketcher.Constraint("DistanceX", 1, 2, 1, 1, Q("1 mm")),
    Sketcher.Constraint("DistanceY", 0, 2, -1, 1, Q("60 mm")),
    Sketcher.Constraint("DistanceX", 8, 2, -1, 1, Q("44 mm")),
    Sketcher.Constraint("DistanceY", -1, 1, 8, 2, Q("20.5 mm")),
    Sketcher.Constraint("DistanceY", 16, 2, -1, 1, Q("0.5 mm")),
    Sketcher.Constraint("DistanceY", 20, 2, -1, 1, Q("42.5 mm")),
    Sketcher.Constraint("DistanceX", 24, 2, -1, 1, Q("20.5 mm")),
    Sketcher.Constraint("DistanceX", 36, 2, -1, 1, Q("41.5 mm")),
])
pad3 = body.newObject("PartDesign::Pad", "Pad002")
pad3.Profile = sketch5
pad3.Length = 0.5
pad3.Reversed = True
doc.recompute()

fillet = body.newObject("PartDesign::Fillet", "Fillet")
fillet.Base = (pad3, edges_at(pad3, [
    (-45, 0, 0),
    (0, 0, 60),
    (45, 0, 0),
    (0, 0, -60),
]))
fillet.Radius = 1

# Sketch on YZ plane
sketch6 = body.newObject("Sketcher::SketchObject", "Sketch005")
sketch6.AttachmentSupport = (doc.getObject("YZ_Plane"), [""])
sketch6.MapMode = "FlatFace"
sketch6.AttachmentOffset = App.Placement(App.Vector(0, 0, -45), App.Rotation())
add_polygon(sketch6, [(9.5, -22), (9.5, -40), (0.5, -40), (0.5, -22)])  # lines 0-3
add_polygon(sketch6, [(10.5, 22), (10.5, -3), (1.5, -3), (1.5, 22)])  # lines 4-7
sketch6.addGeometry(Part.Circle(App.Vector(6, 46.5, 0), App.Vector(0, 0, 1), 4), False)  # 8
sketch6.addGeometry(Part.Circle(App.Vector(6, 25.5, 0), App.Vector(0, 0, 1), 1.75), False)  # 9
sketch6.addGeometry(Part.Circle(App.Vector(6, -6.5, 0), App.Vector(0, 0, 1), 1.75), False)  # 10
sketch6.addGeometry(Part.Circle(App.Vector(5, -19, 0), App.Vector(0, 0, 1), 1.75), False)  # 11
sketch6.addGeometry(Part.Circle(App.Vector(5, -43, 0), App.Vector(0, 0, 1), 1.75), False)  # 12
sketch6.addConstraint([
    Sketcher.Constraint("Vertical", 0),
    Sketcher.Constraint("Horizontal", 1),
    Sketcher.Constraint("Vertical", 2),
    Sketcher.Constraint("Horizontal", 3),
    Sketcher.Constraint("Vertical", 4),
    Sketcher.Constraint("Horizontal", 5),
    Sketcher.Constraint("Vertical", 6),
    Sketcher.Constraint("Horizontal", 7),
    Sketcher.Constraint("Equal", 9, 10),
    Sketcher.Constraint("Equal", 10, 11),
    Sketcher.Constraint("Equal", 11, 12),
    Sketcher.Constraint("Vertical", 8, 3, 9, 3),
    Sketcher.Constraint("Vertical", 9, 3, 10, 3),
    Sketcher.Constraint("Vertical", 11, 3, 12, 3),
    Sketcher.Constraint("Equal", 3, 5),
    Sketcher.Constraint("Diameter", 8, Q("8 mm")),
    Sketcher.Constraint("Diameter", 9, Q("3.5 mm")),
    Sketcher.Constraint("DistanceX", 1, 2, 1, 1, Q("9 mm")),
    Sketcher.Constraint("DistanceY", 0, 2, 0, 1, Q("18 mm")),
    Sketcher.Constraint("DistanceY", 4, 2, 4, 1, Q("25 mm")),
    Sketcher.Constraint("DistanceX", -1, 1, 8, 3, Q("6 mm")),
    Sketcher.Constraint("DistanceX", -1, 1, 11, 3, Q("5 mm")),
    Sketcher.Constraint("DistanceY", 11, 3, -1, 1, Q("19 mm")),
    Sketcher.Constraint("DistanceY", 12, 3, -1, 1, Q("43 mm")),
    Sketcher.Constraint("DistanceY", 0, 2, -1, 1, Q("40 mm")),
    Sketcher.Constraint("DistanceY", 4, 2, -1, 1, Q("3 mm")),
    Sketcher.Constraint("DistanceY", 9, 3, 8, 3, Q("21 mm")),
    Sketcher.Constraint("DistanceY", 10, 3, 9, 3, Q("32 mm")),
    Sketcher.Constraint("DistanceX", 3, 2, 4, 2, Q("1 mm")),
    Sketcher.Constraint("DistanceY", -1, 1, 8, 3, Q("46.5 mm")),
    Sketcher.Constraint("DistanceX", -1, 1, 0, 2, Q("9.5 mm")),
])
pocket3 = body.newObject("PartDesign::Pocket", "Pocket002")
pocket3.Profile = sketch6
pocket3.Length = 1
pocket3.Reversed = True

# Sketch on YZ plane
sketch7 = body.newObject("Sketcher::SketchObject", "Sketch006")
sketch7.AttachmentSupport = (doc.getObject("YZ_Plane"), [""])
sketch7.MapMode = "FlatFace"
sketch7.AttachmentOffset = App.Placement(App.Vector(0, 0, -45), App.Rotation())
add_polygon(sketch7, [(1.5, 22), (1.5, -3), (0, -3), (0, 22)])  # lines 0-3
add_polygon(sketch7, [(1, -22), (1, -40), (0, -40), (0, -22)])  # lines 4-7
sketch7.addConstraint([
    Sketcher.Constraint("Vertical", 0),
    Sketcher.Constraint("Horizontal", 1),
    Sketcher.Constraint("Vertical", 2),
    Sketcher.Constraint("Horizontal", 3),
    Sketcher.Constraint("Vertical", 4),
    Sketcher.Constraint("Horizontal", 5),
    Sketcher.Constraint("Vertical", 6),
    Sketcher.Constraint("Horizontal", 7),
    Sketcher.Constraint("Symmetric", 2, 2, 6, 2, -1, 1),
    Sketcher.Constraint("PointOnObject", 1, 2, -2),
    Sketcher.Constraint("DistanceX", 5, 2, 5, 1, Q("1 mm")),
    Sketcher.Constraint("DistanceY", 0, 2, 0, 1, Q("25 mm")),
    Sketcher.Constraint("DistanceY", 4, 2, 4, 1, Q("18 mm")),
    Sketcher.Constraint("DistanceX", 1, 2, 1, 1, Q("1.5 mm")),
    Sketcher.Constraint("DistanceY", 0, 2, -1, 1, Q("3 mm")),
])
pocket4 = body.newObject("PartDesign::Pocket", "Pocket003")
pocket4.Profile = sketch7
pocket4.Length = 2
pocket4.Reversed = True

# Sketch on XZ plane
sketch8 = body.newObject("Sketcher::SketchObject", "Sketch007")
sketch8.AttachmentSupport = (doc.getObject("XZ_Plane"), [""])
sketch8.MapMode = "FlatFace"
sketch8.addGeometry([
    Part.Circle(App.Vector(-39.5, -50.5, 0), App.Vector(0, 0, 1), 1.75),
    Part.Circle(App.Vector(25.5, -50.5, 0), App.Vector(0, 0, 1), 1.75),
    Part.Circle(App.Vector(25.5, 49.5, 0), App.Vector(0, 0, 1), 1.75),
    Part.Circle(App.Vector(-15, 49.5, 0), App.Vector(0, 0, 1), 1.75),
], False)
sketch8.addConstraint([
    Sketcher.Constraint("Equal", 0, 1),
    Sketcher.Constraint("Equal", 1, 2),
    Sketcher.Constraint("Equal", 2, 3),
    Sketcher.Constraint("Horizontal", 0, 3, 1, 3),
    Sketcher.Constraint("Horizontal", 2, 3, 3, 3),
    Sketcher.Constraint("Vertical", 1, 3, 2, 3),
    Sketcher.Constraint("Diameter", 0, Q("3.5 mm")),
    Sketcher.Constraint("DistanceX", 3, 3, -1, 1, Q("15 mm")),
    Sketcher.Constraint("DistanceX", 0, 3, 1, 3, Q("65 mm")),
    Sketcher.Constraint("DistanceY", 1, 3, 2, 3, Q("100 mm")),
    Sketcher.Constraint("DistanceX", 0, 3, -1, 1, Q("39.5 mm")),
    Sketcher.Constraint("DistanceY", 0, 3, -1, 1, Q("50.5 mm")),
])
pocket5 = body.newObject("PartDesign::Pocket", "Pocket004")
pocket5.Profile = sketch8
pocket5.Type = "ThroughAll"

# Sketch on YZ plane
sketch9 = body.newObject("Sketcher::SketchObject", "Sketch008")
sketch9.AttachmentSupport = (doc.getObject("YZ_Plane"), [""])
sketch9.MapMode = "FlatFace"
sketch9.AttachmentOffset = App.Placement(App.Vector(0, 0, 45), App.Rotation())
add_polygon(sketch9, [(19, 30), (19, -29), (22, -29), (22, 30)])  # lines 0-3
sketch9.addConstraint([
    Sketcher.Constraint("Vertical", 0),
    Sketcher.Constraint("Horizontal", 1),
    Sketcher.Constraint("Vertical", 2),
    Sketcher.Constraint("Horizontal", 3),
    Sketcher.Constraint("DistanceX", 1, 1, 1, 2, Q("3 mm")),
    Sketcher.Constraint("DistanceY", 0, 2, 0, 1, Q("59 mm")),
    Sketcher.Constraint("DistanceX", -1, 1, 0, 2, Q("19 mm")),
    Sketcher.Constraint("DistanceY", 0, 2, -1, 1, Q("29 mm")),
])
pad4 = body.newObject("PartDesign::Pad", "Pad003")
pad4.Profile = sketch9
pad4.Length = 1
pad4.Reversed = True

# Sketch on XZ plane
sketch10 = body.newObject("Sketcher::SketchObject", "Sketch009")
sketch10.AttachmentSupport = (doc.getObject("XZ_Plane"), [""])
sketch10.MapMode = "FlatFace"
add_polygon(sketch10, [(-29.5, 60), (-29.5, 46.5), (-17.5, 46.5), (-17.5, 60)])  # lines 0-3
sketch10.addConstraint([
    Sketcher.Constraint("Vertical", 0),
    Sketcher.Constraint("Horizontal", 1),
    Sketcher.Constraint("Vertical", 2),
    Sketcher.Constraint("Horizontal", 3),
    Sketcher.Constraint("DistanceX", 1, 1, 1, 2, Q("12 mm")),
    Sketcher.Constraint("DistanceY", 0, 2, 0, 1, Q("13.5 mm")),
    Sketcher.Constraint("DistanceY", -1, 1, 2, 2, Q("60 mm")),
    Sketcher.Constraint("DistanceX", 0, 2, -1, 1, Q("29.5 mm")),
])
pocket6 = body.newObject("PartDesign::Pocket", "Pocket005")
pocket6.Profile = sketch10
pocket6.Length = 10

# Sketch on XZ plane
sketch11 = body.newObject("Sketcher::SketchObject", "Sketch010")
sketch11.AttachmentSupport = (doc.getObject("XZ_Plane"), [""])
sketch11.MapMode = "FlatFace"
add_polygon(sketch11, [(-45, -17), (-45, -45), (-41, -45), (-41, -17)])  # lines 0-3
sketch11.addConstraint([
    Sketcher.Constraint("Vertical", 0),
    Sketcher.Constraint("Horizontal", 1),
    Sketcher.Constraint("Vertical", 2),
    Sketcher.Constraint("Horizontal", 3),
    Sketcher.Constraint("DistanceX", 1, 1, 1, 2, Q("4 mm")),
    Sketcher.Constraint("DistanceY", 0, 2, 0, 1, Q("28 mm")),
    Sketcher.Constraint("DistanceX", 0, 2, -1, 1, Q("45 mm")),
    Sketcher.Constraint("DistanceY", 0, 2, -1, 1, Q("45 mm")),
])
pocket7 = body.newObject("PartDesign::Pocket", "Pocket006")
pocket7.Profile = sketch11
pocket7.Length = 1

# Sketch on YZ plane
sketch12 = body.newObject("Sketcher::SketchObject", "Sketch011")
sketch12.AttachmentSupport = (doc.getObject("YZ_Plane"), [""])
sketch12.MapMode = "FlatFace"
sketch12.AttachmentOffset = App.Placement(App.Vector(0, 0, 45), App.Rotation())
add_polygon(sketch12, [(21, 30), (21, -29), (22, -29), (22, 30)])  # lines 0-3
sketch12.addConstraint([
    Sketcher.Constraint("Vertical", 0),
    Sketcher.Constraint("Horizontal", 1),
    Sketcher.Constraint("Vertical", 2),
    Sketcher.Constraint("Horizontal", 3),
    Sketcher.Constraint("DistanceX", 1, 1, 1, 2, Q("1 mm")),
    Sketcher.Constraint("DistanceY", 0, 2, 0, 1, Q("59 mm")),
    Sketcher.Constraint("DistanceX", -1, 1, 0, 2, Q("21 mm")),
    Sketcher.Constraint("DistanceY", 0, 2, -1, 1, Q("29 mm")),
])
pad5 = body.newObject("PartDesign::Pad", "Pad004")
pad5.Profile = sketch12
pad5.Length = 0.5

# Sketch on YZ plane
sketch13 = body.newObject("Sketcher::SketchObject", "Sketch012")
sketch13.AttachmentSupport = (doc.getObject("YZ_Plane"), [""])
sketch13.MapMode = "FlatFace"
sketch13.AttachmentOffset = App.Placement(App.Vector(0, 0, 45.5), App.Rotation())
add_polygon(sketch13, [(19, 30), (19, -29), (22, -29), (22, 30)])  # lines 0-3
sketch13.addConstraint([
    Sketcher.Constraint("Vertical", 0),
    Sketcher.Constraint("Horizontal", 1),
    Sketcher.Constraint("Vertical", 2),
    Sketcher.Constraint("Horizontal", 3),
    Sketcher.Constraint("DistanceX", 1, 1, 1, 2, Q("3 mm")),
    Sketcher.Constraint("DistanceY", 0, 2, 0, 1, Q("59 mm")),
    Sketcher.Constraint("DistanceX", -1, 1, 0, 2, Q("19 mm")),
    Sketcher.Constraint("DistanceY", 0, 2, -1, 1, Q("29 mm")),
])
pad6 = body.newObject("PartDesign::Pad", "Pad005")
pad6.Profile = sketch13
pad6.Length = 1
doc.recompute()

fillet2 = body.newObject("PartDesign::Fillet", "Fillet001")
fillet2.Base = (pad6, edges_at(pad6, [(46.5, 22, 0.5), (44, 22, 0.5)]))
fillet2.Radius = 1

# Sketch on XY plane
sketch14 = body.newObject("Sketcher::SketchObject", "Sketch013")
sketch14.AttachmentSupport = (doc.getObject("XY_Plane"), [""])
sketch14.MapMode = "FlatFace"
sketch14.AttachmentOffset = App.Placement(App.Vector(0, 0, -60), App.Rotation())
sketch14.addGeometry([
    Part.LineSegment(App.Vector(-28.5, 12.5, 0), App.Vector(-28.5, 6.5, 0)),  # 0
    Part.ArcOfCircle(Part.Circle(App.Vector(-30, 6.5, 0), App.Vector(0, 0, 1), 1.5), math.radians(180), math.radians(360)),  # 1
    Part.LineSegment(App.Vector(-31.5, 6.5, 0), App.Vector(-31.5, 12.5, 0)),  # 2
    Part.LineSegment(App.Vector(-31.5, 12.5, 0), App.Vector(-28.5, 12.5, 0)),  # 3
    Part.LineSegment(App.Vector(-23.5, 12.5, 0), App.Vector(-23.5, 6.5, 0)),  # 4
    Part.ArcOfCircle(Part.Circle(App.Vector(-25, 6.5, 0), App.Vector(0, 0, 1), 1.5), math.radians(180), math.radians(360)),  # 5
    Part.LineSegment(App.Vector(-26.5, 6.5, 0), App.Vector(-26.5, 12.5, 0)),  # 6
    Part.LineSegment(App.Vector(-26.5, 12.5, 0), App.Vector(-23.5, 12.5, 0)),  # 7
    Part.LineSegment(App.Vector(-18.5, 12.5, 0), App.Vector(-18.5, 6.5, 0)),  # 8
    Part.ArcOfCircle(Part.Circle(App.Vector(-20, 6.5, 0), App.Vector(0, 0, 1), 1.5), math.radians(180), math.radians(360)),  # 9
    Part.LineSegment(App.Vector(-21.5, 6.5, 0), App.Vector(-21.5, 12.5, 0)),  # 10
    Part.LineSegment(App.Vector(-21.5, 12.5, 0), App.Vector(-18.5, 12.5, 0)),  # 11
    Part.LineSegment(App.Vector(-13.5, 12.5, 0), App.Vector(-13.5, 6.5, 0)),  # 12
    Part.ArcOfCircle(Part.Circle(App.Vector(-15, 6.5, 0), App.Vector(0, 0, 1), 1.5), math.radians(180), math.radians(360)),  # 13
    Part.LineSegment(App.Vector(-16.5, 6.5, 0), App.Vector(-16.5, 12.5, 0)),  # 14
    Part.LineSegment(App.Vector(-16.5, 12.5, 0), App.Vector(-13.5, 12.5, 0)),  # 15
], False)
sketch14.addConstraint([
    Sketcher.Constraint("Tangent", 0, 2, 1, 2),
    Sketcher.Constraint("Tangent", 1, 1, 2, 1),
    Sketcher.Constraint("Coincident", 2, 2, 3, 1),
    Sketcher.Constraint("Coincident", 3, 2, 0, 1),
    Sketcher.Constraint("Tangent", 4, 2, 5, 2),
    Sketcher.Constraint("Tangent", 5, 1, 6, 1),
    Sketcher.Constraint("Coincident", 6, 2, 7, 1),
    Sketcher.Constraint("Coincident", 7, 2, 4, 1),
    Sketcher.Constraint("Tangent", 8, 2, 9, 2),
    Sketcher.Constraint("Tangent", 9, 1, 10, 1),
    Sketcher.Constraint("Coincident", 10, 2, 11, 1),
    Sketcher.Constraint("Coincident", 11, 2, 8, 1),
    Sketcher.Constraint("Tangent", 12, 2, 13, 2),
    Sketcher.Constraint("Tangent", 13, 1, 14, 1),
    Sketcher.Constraint("Coincident", 14, 2, 15, 1),
    Sketcher.Constraint("Coincident", 15, 2, 12, 1),
    Sketcher.Constraint("Vertical", 0),
    Sketcher.Constraint("Vertical", 2),
    Sketcher.Constraint("Horizontal", 3),
    Sketcher.Constraint("Vertical", 4),
    Sketcher.Constraint("Vertical", 6),
    Sketcher.Constraint("Horizontal", 7),
    Sketcher.Constraint("Vertical", 8),
    Sketcher.Constraint("Vertical", 10),
    Sketcher.Constraint("Horizontal", 11),
    Sketcher.Constraint("Vertical", 12),
    Sketcher.Constraint("Vertical", 14),
    Sketcher.Constraint("Horizontal", 15),
    Sketcher.Constraint("Equal", 1, 5),
    Sketcher.Constraint("Equal", 5, 9),
    Sketcher.Constraint("Equal", 9, 13),
    Sketcher.Constraint("Horizontal", 1, 3, 5, 3),
    Sketcher.Constraint("Horizontal", 5, 3, 9, 3),
    Sketcher.Constraint("Horizontal", 9, 3, 13, 3),
    Sketcher.Constraint("Horizontal", 3, 2, 6, 2),
    Sketcher.Constraint("Horizontal", 7, 2, 10, 2),
    Sketcher.Constraint("Horizontal", 11, 2, 14, 2),
    Sketcher.Constraint("Radius", 1, Q("1.5 mm")),
    Sketcher.Constraint("DistanceY", 0, 2, 0, 1, Q("6 mm")),
    Sketcher.Constraint("DistanceX", 1, 3, -1, 1, Q("30 mm")),
    Sketcher.Constraint("DistanceX", 5, 3, -1, 1, Q("25 mm")),
    Sketcher.Constraint("DistanceX", 9, 3, -1, 1, Q("20 mm")),
    Sketcher.Constraint("DistanceX", 13, 3, -1, 1, Q("15 mm")),
    Sketcher.Constraint("DistanceY", -1, 1, 1, 3, Q("6.5 mm")),
])
pocket8 = body.newObject("PartDesign::Pocket", "Pocket007")
pocket8.Profile = sketch14
pocket8.Length = 1
pocket8.Reversed = True

doc.recompute()
